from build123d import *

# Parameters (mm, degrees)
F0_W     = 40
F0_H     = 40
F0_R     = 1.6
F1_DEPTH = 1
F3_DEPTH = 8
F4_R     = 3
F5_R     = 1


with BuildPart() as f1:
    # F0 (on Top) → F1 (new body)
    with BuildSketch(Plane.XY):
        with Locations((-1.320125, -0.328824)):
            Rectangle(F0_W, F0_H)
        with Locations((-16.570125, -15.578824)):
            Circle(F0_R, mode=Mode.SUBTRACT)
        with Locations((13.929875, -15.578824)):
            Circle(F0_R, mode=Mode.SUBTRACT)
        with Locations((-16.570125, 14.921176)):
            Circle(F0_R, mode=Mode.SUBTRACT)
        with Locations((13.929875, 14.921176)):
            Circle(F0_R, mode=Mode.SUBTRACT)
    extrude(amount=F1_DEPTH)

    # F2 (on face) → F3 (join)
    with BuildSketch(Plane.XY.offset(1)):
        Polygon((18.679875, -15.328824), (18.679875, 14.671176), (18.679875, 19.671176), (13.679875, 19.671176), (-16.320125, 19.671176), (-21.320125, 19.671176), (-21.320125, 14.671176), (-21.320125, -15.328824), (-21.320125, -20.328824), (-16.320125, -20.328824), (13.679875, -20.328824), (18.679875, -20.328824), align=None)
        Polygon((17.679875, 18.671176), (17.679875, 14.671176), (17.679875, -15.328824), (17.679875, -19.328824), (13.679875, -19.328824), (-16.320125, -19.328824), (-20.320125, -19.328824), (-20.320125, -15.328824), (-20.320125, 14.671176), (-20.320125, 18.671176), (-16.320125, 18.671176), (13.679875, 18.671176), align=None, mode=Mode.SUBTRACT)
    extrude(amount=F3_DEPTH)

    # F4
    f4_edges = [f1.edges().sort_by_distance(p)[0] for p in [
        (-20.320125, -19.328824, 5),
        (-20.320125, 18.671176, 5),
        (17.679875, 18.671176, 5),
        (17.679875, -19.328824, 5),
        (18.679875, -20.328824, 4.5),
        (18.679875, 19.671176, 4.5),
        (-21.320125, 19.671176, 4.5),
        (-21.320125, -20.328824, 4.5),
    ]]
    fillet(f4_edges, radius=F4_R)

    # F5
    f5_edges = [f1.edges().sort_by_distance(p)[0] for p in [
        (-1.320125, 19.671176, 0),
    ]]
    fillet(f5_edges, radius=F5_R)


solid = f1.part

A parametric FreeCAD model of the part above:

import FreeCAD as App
import Part
import Sketcher

V = App.Vector
Q = App.Units.Quantity


def edges_at(feature, points):
    """Names of the edges that pass closest to the given points."""
    edges = feature.Shape.Edges
    near = lambda p: min(range(len(edges)), key=lambda i: edges[i].distToShape(Part.Vertex(*p))[0])
    return sorted({f"Edge{near(p) + 1}" for p in points})


def add_polygon(sketch, points):
    """Adds a closed chain of lines whose ends are joined by coincident constraints."""
    first, n = sketch.GeometryCount, len(points)
    for a, b in zip(points, points[1:] + points[:1]):
        sketch.addGeometry(Part.LineSegment(App.Vector(*a, 0), App.Vector(*b, 0)), False)
    for i in range(n):
        sketch.addConstraint(Sketcher.Constraint("Coincident", first + i, 2, first + (i + 1) % n, 1))

doc = App.newDocument("Part")
body = doc.addObject("PartDesign::Body", "Body")

# Sketch on XY plane
sketch1 = body.newObject("Sketcher::SketchObject", "Sketch")
sketch1.AttachmentSupport = (doc.getObject("XY_Plane"), [""])
sketch1.MapMode = "FlatFace"
add_polygon(sketch1, [(-21.3, 19.7), (-21.3, -20.3), (18.7, -20.3), (18.7, 19.7)])  # lines 0-3
sketch1.addGeometry(Part.Circle(V(-16.6, -15.6, 0), V(0, 0, 1), 1.6), False)  # 4
sketch1.addGeometry(Part.Circle(V(13.9, -15.6, 0), V(0, 0, 1), 1.6), False)  # 5
sketch1.addGeometry(Part.Circle(V(-16.6, 14.9, 0), V(0, 0, 1), 1.6), False)  # 6
sketch1.addGeometry(Part.Circle(V(13.9, 14.9, 0), V(0, 0, 1), 1.6), False)  # 7
sketch1.addConstraint([
    Sketcher.Constraint("Vertical", 0),
    Sketcher.Constraint("Horizontal", 1),
    Sketcher.Constraint("Vertical", 2),
    Sketcher.Constraint("Horizontal", 3),
    Sketcher.Constraint("Equal", 4, 5),
    Sketcher.Constraint("Equal", 5, 6),
    Sketcher.Constraint("Equal", 6, 7),
    Sketcher.Constraint("Horizontal", 4, 3, 5, 3),
    Sketcher.Constraint("Horizontal", 6, 3, 7, 3),
    Sketcher.Constraint("Vertical", 4, 3, 6, 3),
    Sketcher.Constraint("Vertical", 5, 3, 7, 3),
    Sketcher.Constraint("Equal", 3, 0),
    Sketcher.Constraint("Diameter", 4, Q("3.2 mm")),
    Sketcher.Constraint("DistanceX", 1, 1, 1, 2, Q("40 mm")),
    Sketcher.Constraint("DistanceX", 4, 3, 5, 3, Q("30.5 mm")),
    Sketcher.Constraint("DistanceY", 4, 3, 6, 3, Q("30.5 mm")),
    Sketcher.Constraint("DistanceX", 0, 2, 4, 3, Q("4.75 mm")),
    Sketcher.Constraint("DistanceY", 0, 2, 4, 3, Q("4.75 mm")),
    Sketcher.Constraint("DistanceX", 4, 3, -1, 1, Q("16.570125 mm")),
    Sketcher.Constraint("DistanceY", 4, 3, -1, 1, Q("15.578824 mm")),
])
pad1 = body.newObject("PartDesign::Pad", "Pad")
pad1.Profile = sketch1
pad1.Length = 1

# Sketch on XY plane
sketch2 = body.newObject("Sketcher::SketchObject", "Sketch001")
sketch2.AttachmentSupport = (doc.getObject("XY_Plane"), [""])
sketch2.MapMode = "FlatFace"
sketch2.AttachmentOffset = App.Placement(V(0, 0, 1), App.Rotation())
add_polygon(sketch2, [(19, 20), (-21, 20), (-21, -20), (19, -20)])  # lines 0-3
add_polygon(sketch2, [(-20, 19), (18, 19), (18, -19), (-20, -19)])  # lines 4-7
sketch2.addConstraint([
    Sketcher.Constraint("Horizontal", 0),
    Sketcher.Constraint("Vertical", 1),
    Sketcher.Constraint("Horizontal", 2),
    Sketcher.Constraint("Vertical", 3),
    Sketcher.Constraint("Horizontal", 4),
    Sketcher.Constraint("Vertical", 5),
    Sketcher.Constraint("Horizontal", 6),
    Sketcher.Constraint("Vertical", 7),
    Sketcher.Constraint("Equal", 2, 1),
    Sketcher.Constraint("Equal", 6, 5),
    Sketcher.Constraint("DistanceX", 0, 2, 0, 1, Q("40 mm")),
    Sketcher.Constraint("DistanceX", 4, 1, 4, 2, Q("38 mm")),
    Sketcher.Constraint("DistanceX", 4, 2, 3, 2, Q("1 mm")),
    Sketcher.Constraint("DistanceY", 4, 2, 3, 2, Q("1 mm")),
    Sketcher.Constraint("DistanceX", 0, 2, -1, 1, Q("21.320125 mm")),
    Sketcher.Constraint("DistanceY", -1, 1, 0, 2, Q("19.671176 mm")),
])
pad2 = body.newObject("PartDesign::Pad", "Pad001")
pad2.Profile = sketch2
pad2.Length = 8
doc.recompute()

fillet = body.newObject("PartDesign::Fillet", "Fillet")
fillet.Base = (pad2, edges_at(pad2, [
    (-20.32, -19.329, 5),
    (-20.32, 18.671, 5),
    (17.68, 18.671, 5),
    (17.68, -19.329, 5),
    (18.68, -20.329, 4.5),
    (18.68, 19.671, 4.5),
    (-21.32, 19.671, 4.5),
    (-21.32, -20.329, 4.5),
]))
fillet.Radius = 3
doc.recompute()

fillet2 = body.newObject("PartDesign::Fillet", "Fillet001")
fillet2.Base = (fillet, edges_at(fillet, [(-1.32, 19.671, 0)]))
fillet2.Radius = 1

doc.recompute()
